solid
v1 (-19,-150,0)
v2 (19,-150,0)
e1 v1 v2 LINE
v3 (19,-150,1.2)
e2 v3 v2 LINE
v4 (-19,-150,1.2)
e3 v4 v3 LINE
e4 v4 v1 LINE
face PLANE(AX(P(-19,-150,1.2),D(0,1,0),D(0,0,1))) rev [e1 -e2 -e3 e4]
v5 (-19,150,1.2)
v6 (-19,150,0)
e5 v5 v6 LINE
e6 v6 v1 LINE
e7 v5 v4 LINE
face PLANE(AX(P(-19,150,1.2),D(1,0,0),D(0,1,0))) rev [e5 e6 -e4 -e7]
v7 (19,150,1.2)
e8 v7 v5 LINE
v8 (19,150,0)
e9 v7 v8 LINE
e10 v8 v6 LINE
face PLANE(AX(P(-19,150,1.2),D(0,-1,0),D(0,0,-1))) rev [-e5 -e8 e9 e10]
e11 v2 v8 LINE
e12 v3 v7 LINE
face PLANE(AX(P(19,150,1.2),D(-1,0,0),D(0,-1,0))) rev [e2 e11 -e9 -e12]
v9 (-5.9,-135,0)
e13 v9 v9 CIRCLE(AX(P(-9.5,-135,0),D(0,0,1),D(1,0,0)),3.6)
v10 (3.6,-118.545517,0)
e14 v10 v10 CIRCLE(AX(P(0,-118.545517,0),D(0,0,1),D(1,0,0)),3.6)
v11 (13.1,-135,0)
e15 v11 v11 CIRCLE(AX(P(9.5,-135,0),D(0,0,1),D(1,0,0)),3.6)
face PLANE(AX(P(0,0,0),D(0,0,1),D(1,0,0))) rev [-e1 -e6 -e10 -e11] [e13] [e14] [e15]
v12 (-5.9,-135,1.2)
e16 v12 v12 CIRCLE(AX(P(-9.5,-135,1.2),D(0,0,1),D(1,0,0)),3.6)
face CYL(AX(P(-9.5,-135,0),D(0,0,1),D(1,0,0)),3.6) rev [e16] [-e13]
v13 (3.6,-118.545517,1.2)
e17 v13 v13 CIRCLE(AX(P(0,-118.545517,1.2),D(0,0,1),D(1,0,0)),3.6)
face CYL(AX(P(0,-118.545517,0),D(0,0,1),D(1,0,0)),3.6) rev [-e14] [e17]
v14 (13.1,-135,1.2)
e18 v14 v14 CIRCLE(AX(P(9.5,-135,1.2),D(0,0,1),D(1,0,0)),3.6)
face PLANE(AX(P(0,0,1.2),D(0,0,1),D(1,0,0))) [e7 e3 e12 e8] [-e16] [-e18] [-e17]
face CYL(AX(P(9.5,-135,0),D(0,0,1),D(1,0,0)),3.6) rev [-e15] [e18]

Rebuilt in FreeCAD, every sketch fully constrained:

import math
import FreeCAD as App
import Part
import Sketcher
from FreeCAD import Vector

doc = App.newDocument("Part")
params = doc.addObject("Spreadsheet::Sheet", "Params")
for row, (alias, value) in enumerate([
    ("sketch1_width", "38 mm"),
    ("sketch1_height", "300 mm"),
    ("pad1_length", "1.2 mm"),
    ("sketch2_diameter", "7.2 mm"),
    ("pocket1_length", "1.2 mm"),
], start=1):
    params.set(f"A{row}", alias)
    params.set(f"B{row}", "=" + value)
    params.setAlias(f"B{row}", alias)

body = doc.addObject("PartDesign::Body", "Body")

sketch1 = doc.addObject("Sketcher::SketchObject", "Sketch")
body.addObject(sketch1)
sketch1.AttachmentSupport = (doc.XY_Plane, [""])
sketch1.MapMode = "FlatFace"
sketch1.addGeometry(Part.LineSegment(Vector(-19, 150, 0), Vector(-19, -150, 0)), False)
sketch1.addGeometry(Part.LineSegment(Vector(-19, -150, 0), Vector(19, -150, 0)), False)
sketch1.addGeometry(Part.LineSegment(Vector(19, -150, 0), Vector(19, 150, 0)), False)
sketch1.addGeometry(Part.LineSegment(Vector(19, 150, 0), Vector(-19, 150, 0)), False)
sketch1.addConstraint(Sketcher.Constraint("Coincident", 0, 2, 1, 1))
sketch1.addConstraint(Sketcher.Constraint("Coincident", 1, 2, 2, 1))
sketch1.addConstraint(Sketcher.Constraint("Coincident", 2, 2, 3, 1))
sketch1.addConstraint(Sketcher.Constraint("Coincident", 3, 2, 0, 1))
sketch1.addConstraint(Sketcher.Constraint("Vertical", 0))
sketch1.addConstraint(Sketcher.Constraint("Horizontal", 1))
sketch1.addConstraint(Sketcher.Constraint("Vertical", 2))
sketch1.addConstraint(Sketcher.Constraint("Horizontal", 3))
sketch1.addConstraint(Sketcher.Constraint("Symmetric", 0, 2, 2, 2, -1, 1))
sketch1.addConstraint(Sketcher.Constraint("DistanceX", 1, 1, 1, 2, 38.0))
sketch1.addConstraint(Sketcher.Constraint("DistanceY", 0, 2, 0, 1, 300.0))
sketch1.setExpression("Constraints[9]", "Params.sketch1_width")
sketch1.setExpression("Constraints[10]", "Params.sketch1_height")
pad1 = doc.addObject("PartDesign::Pad", "Pad")
body.addObject(pad1)
pad1.Profile = sketch1
pad1.setExpression("Length", "Params.pad1_length")

sketch2 = doc.addObject("Sketcher::SketchObject", "Sketch001")
body.addObject(sketch2)
sketch2.AttachmentSupport = (doc.XY_Plane, [""])
sketch2.MapMode = "FlatFace"
sketch2.AttachmentOffset = App.Placement(Vector(0, 0, 1.2), App.Rotation())
sketch2.addGeometry(Part.ArcOfCircle(Part.Circle(Vector(0, -118.545517, 0), Vector(0, 0, 1), 3.6), math.radians(90), math.radians(270)), False)
sketch2.addGeometry(Part.ArcOfCircle(Part.Circle(Vector(0, -118.545517, 0), Vector(0, 0, 1), 3.6), math.radians(-90), math.radians(0)), False)
sketch2.addGeometry(Part.ArcOfCircle(Part.Circle(Vector(0, -118.545517, 0), Vector(0, 0, 1), 3.6), math.radians(0), math.radians(90)), False)
sketch2.addGeometry(Part.Circle(Vector(-9.5, -135, 0), Vector(0, 0, 1), 3.6), False)
sketch2.addGeometry(Part.Circle(Vector(9.5, -135, 0), Vector(0, 0, 1), 3.6), False)
sketch2.addConstraint(Sketcher.Constraint("Tangent", 0, 2, 1, 1))
sketch2.addConstraint(Sketcher.Constraint("Tangent", 1, 2, 2, 1))
sketch2.addConstraint(Sketcher.Constraint("Tangent", 2, 2, 0, 1))
sketch2.addConstraint(Sketcher.Constraint("Equal", 2, 3))
sketch2.addConstraint(Sketcher.Constraint("Equal", 3, 4))
sketch2.addConstraint(Sketcher.Constraint("Symmetric", 3, 3, 4, 3, -2))
sketch2.addConstraint(Sketcher.Constraint("PointOnObject", 0, 3, -2))
sketch2.addConstraint(Sketcher.Constraint("PointOnObject", 0, 2, -2))
sketch2.addConstraint(Sketcher.Constraint("PointOnObject", 2, 2, -2))
sketch2.addConstraint(Sketcher.Constraint("Horizontal", 2, 3, 1, 2))
sketch2.addConstraint(Sketcher.Constraint("Diameter", 3, 7.2))
sketch2.addConstraint(Sketcher.Constraint("DistanceY", 3, 3, -1, 1, 135.0))
sketch2.addConstraint(Sketcher.Constraint("DistanceX", 3, 3, 4, 3, 19.0))
sketch2.addConstraint(Sketcher.Constraint("DistanceY", 0, 3, -1, 1, 118.545517))
sketch2.setExpression("Constraints[10]", "Params.sketch2_diameter")
pocket1 = doc.addObject("PartDesign::Pocket", "Pocket")
body.addObject(pocket1)
pocket1.Profile = sketch2
pocket1.setExpression("Length", "Params.pocket1_length")

doc.recompute()
